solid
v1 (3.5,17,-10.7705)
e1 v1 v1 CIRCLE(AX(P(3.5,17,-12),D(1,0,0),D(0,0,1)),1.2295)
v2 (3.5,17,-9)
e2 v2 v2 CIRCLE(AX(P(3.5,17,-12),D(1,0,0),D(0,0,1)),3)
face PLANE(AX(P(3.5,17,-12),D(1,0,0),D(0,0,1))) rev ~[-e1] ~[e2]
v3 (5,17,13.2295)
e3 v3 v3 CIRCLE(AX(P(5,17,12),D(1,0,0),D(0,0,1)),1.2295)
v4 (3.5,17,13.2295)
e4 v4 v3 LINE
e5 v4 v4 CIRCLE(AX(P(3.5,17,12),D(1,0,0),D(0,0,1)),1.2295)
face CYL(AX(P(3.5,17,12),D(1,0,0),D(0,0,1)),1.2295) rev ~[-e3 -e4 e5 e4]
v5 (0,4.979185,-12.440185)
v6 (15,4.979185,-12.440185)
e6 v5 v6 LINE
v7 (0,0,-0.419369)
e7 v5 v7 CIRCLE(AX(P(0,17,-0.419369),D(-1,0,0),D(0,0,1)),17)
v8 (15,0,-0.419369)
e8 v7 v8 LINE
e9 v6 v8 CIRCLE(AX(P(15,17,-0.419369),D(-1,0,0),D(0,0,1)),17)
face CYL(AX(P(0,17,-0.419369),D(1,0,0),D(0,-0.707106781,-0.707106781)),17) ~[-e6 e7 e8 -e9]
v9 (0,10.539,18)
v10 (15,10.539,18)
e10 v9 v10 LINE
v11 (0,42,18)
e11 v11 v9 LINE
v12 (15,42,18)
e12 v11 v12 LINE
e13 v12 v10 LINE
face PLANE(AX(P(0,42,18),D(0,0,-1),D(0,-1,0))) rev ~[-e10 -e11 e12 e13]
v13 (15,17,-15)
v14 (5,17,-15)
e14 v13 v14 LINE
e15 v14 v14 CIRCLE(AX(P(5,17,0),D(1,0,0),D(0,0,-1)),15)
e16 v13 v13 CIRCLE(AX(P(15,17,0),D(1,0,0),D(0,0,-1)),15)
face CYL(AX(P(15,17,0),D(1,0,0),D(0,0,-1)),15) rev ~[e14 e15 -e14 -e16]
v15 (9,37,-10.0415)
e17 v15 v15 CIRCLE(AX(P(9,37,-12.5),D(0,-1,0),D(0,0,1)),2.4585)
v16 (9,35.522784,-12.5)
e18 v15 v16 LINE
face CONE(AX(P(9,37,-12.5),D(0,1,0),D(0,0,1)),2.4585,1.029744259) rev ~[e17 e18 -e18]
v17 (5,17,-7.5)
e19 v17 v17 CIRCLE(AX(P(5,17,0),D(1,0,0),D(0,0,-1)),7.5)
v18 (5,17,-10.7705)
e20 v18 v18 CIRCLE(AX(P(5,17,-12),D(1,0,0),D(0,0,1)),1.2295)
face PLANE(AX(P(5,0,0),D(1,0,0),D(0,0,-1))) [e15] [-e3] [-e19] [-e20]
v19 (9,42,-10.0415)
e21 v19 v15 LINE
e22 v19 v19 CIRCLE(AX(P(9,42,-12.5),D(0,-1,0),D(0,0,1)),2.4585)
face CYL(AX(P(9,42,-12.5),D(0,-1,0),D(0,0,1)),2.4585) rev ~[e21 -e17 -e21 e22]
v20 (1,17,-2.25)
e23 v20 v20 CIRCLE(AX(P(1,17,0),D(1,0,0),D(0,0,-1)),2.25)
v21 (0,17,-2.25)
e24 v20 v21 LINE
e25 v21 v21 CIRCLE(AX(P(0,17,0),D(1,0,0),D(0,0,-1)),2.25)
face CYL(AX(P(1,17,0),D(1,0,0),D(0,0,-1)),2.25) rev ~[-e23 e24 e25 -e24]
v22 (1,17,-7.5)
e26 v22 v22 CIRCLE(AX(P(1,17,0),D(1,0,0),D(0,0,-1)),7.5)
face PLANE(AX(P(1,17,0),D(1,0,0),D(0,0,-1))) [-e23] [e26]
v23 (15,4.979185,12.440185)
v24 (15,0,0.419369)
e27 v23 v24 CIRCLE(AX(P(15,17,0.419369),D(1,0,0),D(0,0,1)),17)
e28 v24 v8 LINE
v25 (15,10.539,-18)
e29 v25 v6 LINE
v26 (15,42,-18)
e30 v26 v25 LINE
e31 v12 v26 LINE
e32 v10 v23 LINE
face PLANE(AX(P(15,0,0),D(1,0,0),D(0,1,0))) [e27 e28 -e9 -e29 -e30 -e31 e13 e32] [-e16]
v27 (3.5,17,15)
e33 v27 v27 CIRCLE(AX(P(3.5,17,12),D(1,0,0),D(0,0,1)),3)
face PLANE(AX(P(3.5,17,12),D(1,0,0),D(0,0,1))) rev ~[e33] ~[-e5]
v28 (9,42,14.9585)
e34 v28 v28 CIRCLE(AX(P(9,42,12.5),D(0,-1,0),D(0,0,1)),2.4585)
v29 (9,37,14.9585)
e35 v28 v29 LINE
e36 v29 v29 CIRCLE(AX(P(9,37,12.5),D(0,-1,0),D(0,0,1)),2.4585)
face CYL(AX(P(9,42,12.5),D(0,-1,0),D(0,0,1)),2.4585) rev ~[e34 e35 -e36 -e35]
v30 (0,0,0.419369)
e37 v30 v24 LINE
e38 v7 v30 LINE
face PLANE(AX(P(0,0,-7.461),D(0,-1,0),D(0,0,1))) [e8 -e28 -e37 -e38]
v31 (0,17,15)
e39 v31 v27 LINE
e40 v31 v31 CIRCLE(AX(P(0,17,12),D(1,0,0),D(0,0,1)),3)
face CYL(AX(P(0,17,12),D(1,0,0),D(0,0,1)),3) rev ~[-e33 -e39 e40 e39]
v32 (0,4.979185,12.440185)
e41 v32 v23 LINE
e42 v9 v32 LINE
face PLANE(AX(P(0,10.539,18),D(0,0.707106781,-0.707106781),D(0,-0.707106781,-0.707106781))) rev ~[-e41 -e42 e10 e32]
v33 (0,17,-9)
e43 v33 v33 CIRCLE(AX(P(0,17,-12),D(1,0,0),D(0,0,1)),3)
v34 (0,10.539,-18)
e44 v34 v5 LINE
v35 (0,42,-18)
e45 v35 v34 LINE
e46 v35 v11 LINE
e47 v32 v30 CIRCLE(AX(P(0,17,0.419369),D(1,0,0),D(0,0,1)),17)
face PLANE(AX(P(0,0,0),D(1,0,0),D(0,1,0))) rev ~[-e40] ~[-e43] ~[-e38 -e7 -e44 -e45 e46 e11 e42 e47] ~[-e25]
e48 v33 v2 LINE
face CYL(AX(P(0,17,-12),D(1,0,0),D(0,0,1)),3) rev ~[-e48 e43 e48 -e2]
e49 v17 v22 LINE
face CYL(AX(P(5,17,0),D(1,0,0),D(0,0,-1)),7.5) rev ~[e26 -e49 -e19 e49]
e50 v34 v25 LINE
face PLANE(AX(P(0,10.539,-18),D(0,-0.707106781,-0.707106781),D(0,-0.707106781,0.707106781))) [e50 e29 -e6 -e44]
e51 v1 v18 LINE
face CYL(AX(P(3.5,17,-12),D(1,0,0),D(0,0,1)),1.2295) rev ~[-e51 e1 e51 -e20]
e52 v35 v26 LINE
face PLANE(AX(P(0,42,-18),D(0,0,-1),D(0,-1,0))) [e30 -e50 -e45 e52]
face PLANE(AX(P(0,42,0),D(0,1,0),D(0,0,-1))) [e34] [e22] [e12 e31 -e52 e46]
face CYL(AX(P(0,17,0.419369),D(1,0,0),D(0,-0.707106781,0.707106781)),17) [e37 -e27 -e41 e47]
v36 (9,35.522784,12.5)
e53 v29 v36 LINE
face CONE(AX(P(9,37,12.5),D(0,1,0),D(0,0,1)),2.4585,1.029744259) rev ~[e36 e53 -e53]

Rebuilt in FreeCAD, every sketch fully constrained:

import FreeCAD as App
import Part
import Sketcher

V = App.Vector


def edges_at(feature, points):
    """Names of the edges that pass closest to the given points."""
    edges = feature.Shape.Edges
    near = lambda p: min(range(len(edges)), key=lambda i: edges[i].distToShape(Part.Vertex(*p))[0])
    return sorted({f"Edge{near(p) + 1}" for p in points})

doc = App.newDocument("Part")
body = doc.addObject("PartDesign::Body", "Body")

sketch1 = body.newObject("Sketcher::SketchObject", "Sketch")
sketch1.AttachmentSupport = (doc.getObject("YZ_Plane"), [""])
sketch1.MapMode = "FlatFace"
sketch1.addGeometry([
    Part.LineSegment(V(42, -18, 0), V(42, 18, 0)),
    Part.LineSegment(V(42, 18, 0), V(10.539, 18, 0)),
    Part.LineSegment(V(10.539, 18, 0), V(0, 7.461, 0)),
    Part.LineSegment(V(0, 7.461, 0), V(0, -7.461, 0)),
    Part.LineSegment(V(0, -7.461, 0), V(10.539, -18, 0)),
    Part.LineSegment(V(10.539, -18, 0), V(42, -18, 0)),
], False)
sketch1.addConstraint([
    Sketcher.Constraint("Coincident", 0, 2, 1, 1),
    Sketcher.Constraint("Coincident", 1, 2, 2, 1),
    Sketcher.Constraint("Coincident", 2, 2, 3, 1),
    Sketcher.Constraint("Coincident", 3, 2, 4, 1),
    Sketcher.Constraint("Coincident", 4, 2, 5, 1),
    Sketcher.Constraint("Coincident", 5, 2, 0, 1),
    Sketcher.Constraint("Vertical", 0),
    Sketcher.Constraint("Horizontal", 1),
    Sketcher.Constraint("Vertical", 3),
    Sketcher.Constraint("Horizontal", 5),
    Sketcher.Constraint("Symmetric", 2, 2, 3, 2, -1, 1),
    Sketcher.Constraint("Symmetric", 1, 2, 4, 2, -1),
    Sketcher.Constraint("Perpendicular", 2, 4),
    Sketcher.Constraint("DistanceY", -1, 1, 0, 2, 18.0),
    Sketcher.Constraint("DistanceX", -1, 1, 0, 2, 42.0),
    Sketcher.Constraint("DistanceX", 1, 2, 1, 1, 31.461),
])
pad1 = body.newObject("PartDesign::Pad", "Pad")
pad1.Profile = sketch1
pad1.Length = 15

sketch2 = body.newObject("Sketcher::SketchObject", "Sketch001")
sketch2.AttachmentSupport = (doc.getObject("YZ_Plane"), [""])
sketch2.MapMode = "FlatFace"
sketch2.AttachmentOffset = App.Placement(V(0, 0, 15), App.Rotation())
sketch2.addGeometry(Part.Circle(V(17, 0, 0), V(0, 0, 1), 15), False)
sketch2.addConstraint([
    Sketcher.Constraint("PointOnObject", 0, 3, -1),
    Sketcher.Constraint("Diameter", 0, 30.0),
    Sketcher.Constraint("DistanceX", -1, 1, 0, 3, 17.0),
])
pocket1 = body.newObject("PartDesign::Pocket", "Pocket")
pocket1.Profile = sketch2
pocket1.Length = 10

sketch3 = body.newObject("Sketcher::SketchObject", "Sketch002")
sketch3.AttachmentSupport = (doc.getObject("YZ_Plane"), [""])
sketch3.MapMode = "FlatFace"
sketch3.AttachmentOffset = App.Placement(V(0, 0, 5), App.Rotation())
sketch3.addGeometry(Part.Circle(V(17, 0, 0), V(0, 0, 1), 7.5), False)
sketch3.addConstraint([
    Sketcher.Constraint("PointOnObject", 0, 3, -1),
    Sketcher.Constraint("Diameter", 0, 15.0),
    Sketcher.Constraint("DistanceX", -1, 1, 0, 3, 17.0),
])
pocket2 = body.newObject("PartDesign::Pocket", "Pocket001")
pocket2.Profile = sketch3
pocket2.Length = 4

sketch4 = body.newObject("Sketcher::SketchObject", "Sketch003")
sketch4.AttachmentSupport = (doc.getObject("YZ_Plane"), [""])
sketch4.MapMode = "FlatFace"
sketch4.AttachmentOffset = App.Placement(V(0, 0, 1), App.Rotation())
sketch4.addGeometry(Part.Circle(V(17, 0, 0), V(0, 0, 1), 2.25), False)
sketch4.addConstraint([
    Sketcher.Constraint("PointOnObject", 0, 3, -1),
    Sketcher.Constraint("Diameter", 0, 4.5),
    Sketcher.Constraint("DistanceX", -1, 1, 0, 3, 17.0),
])
pocket3 = body.newObject("PartDesign::Pocket", "Pocket002")
pocket3.Profile = sketch4
pocket3.Type = "UpToFirst"

sketch5 = body.newObject("Sketcher::SketchObject", "Sketch004")
sketch5.AttachmentSupport = (doc.getObject("YZ_Plane"), [""])
sketch5.MapMode = "FlatFace"
sketch5.addGeometry([
    Part.Circle(V(17, -12, 0), V(0, 0, 1), 1.2295),
    Part.Circle(V(17, 12, 0), V(0, 0, 1), 1.2295),
], False)
sketch5.addConstraint([
    Sketcher.Constraint("Equal", 0, 1),
    Sketcher.Constraint("Symmetric", 0, 3, 1, 3, -1),
    Sketcher.Constraint("Diameter", 0, 2.459),
    Sketcher.Constraint("DistanceX", -1, 1, 0, 3, 17.0),
    Sketcher.Constraint("DistanceY", 0, 3, -1, 1, 12.0),
])
doc.recompute()
hole = body.newObject("PartDesign::Hole", "Hole")
hole.Profile = sketch5
hole.ThreadType = "None"
hole.Diameter = 2.459
hole.DepthType = "ThroughAll"
hole.HoleCutType = "Counterbore"
hole.HoleCutDiameter = 6
hole.HoleCutDepth = 3.5
hole.Reversed = True

sketch6 = body.newObject("Sketcher::SketchObject", "Sketch005")
sketch6.AttachmentSupport = (doc.getObject("XZ_Plane"), [""])
sketch6.MapMode = "FlatFace"
sketch6.AttachmentOffset = App.Placement(V(0, 0, -42), App.Rotation())
sketch6.addGeometry([
    Part.Circle(V(9, 12.5, 0), V(0, 0, 1), 2.4585),
    Part.Circle(V(9, -12.5, 0), V(0, 0, 1), 2.4585),
], False)
sketch6.addConstraint([
    Sketcher.Constraint("Equal", 0, 1),
    Sketcher.Constraint("Symmetric", 0, 3, 1, 3, -1),
    Sketcher.Constraint("Diameter", 0, 4.917),
    Sketcher.Constraint("DistanceX", -1, 1, 0, 3, 9.0),
    Sketcher.Constraint("DistanceY", 1, 3, 0, 3, 25.0),
])
doc.recompute()
hole2 = body.newObject("PartDesign::Hole", "Hole001")
hole2.Profile = sketch6
hole2.ThreadType = "None"
hole2.Diameter = 4.917
hole2.DepthType = "Dimension"
hole2.Depth = 5
hole2.DrillPoint = "Angled"
hole2.DrillPointAngle = 118
hole2.Reversed = True
doc.recompute()

fillet = body.newObject("PartDesign::Fillet", "Fillet")
fillet.Base = (hole2, edges_at(hole2, [(7.5, 0, -7.461), (7.5, 0, 7.461)]))
fillet.Radius = 17

doc.recompute()
